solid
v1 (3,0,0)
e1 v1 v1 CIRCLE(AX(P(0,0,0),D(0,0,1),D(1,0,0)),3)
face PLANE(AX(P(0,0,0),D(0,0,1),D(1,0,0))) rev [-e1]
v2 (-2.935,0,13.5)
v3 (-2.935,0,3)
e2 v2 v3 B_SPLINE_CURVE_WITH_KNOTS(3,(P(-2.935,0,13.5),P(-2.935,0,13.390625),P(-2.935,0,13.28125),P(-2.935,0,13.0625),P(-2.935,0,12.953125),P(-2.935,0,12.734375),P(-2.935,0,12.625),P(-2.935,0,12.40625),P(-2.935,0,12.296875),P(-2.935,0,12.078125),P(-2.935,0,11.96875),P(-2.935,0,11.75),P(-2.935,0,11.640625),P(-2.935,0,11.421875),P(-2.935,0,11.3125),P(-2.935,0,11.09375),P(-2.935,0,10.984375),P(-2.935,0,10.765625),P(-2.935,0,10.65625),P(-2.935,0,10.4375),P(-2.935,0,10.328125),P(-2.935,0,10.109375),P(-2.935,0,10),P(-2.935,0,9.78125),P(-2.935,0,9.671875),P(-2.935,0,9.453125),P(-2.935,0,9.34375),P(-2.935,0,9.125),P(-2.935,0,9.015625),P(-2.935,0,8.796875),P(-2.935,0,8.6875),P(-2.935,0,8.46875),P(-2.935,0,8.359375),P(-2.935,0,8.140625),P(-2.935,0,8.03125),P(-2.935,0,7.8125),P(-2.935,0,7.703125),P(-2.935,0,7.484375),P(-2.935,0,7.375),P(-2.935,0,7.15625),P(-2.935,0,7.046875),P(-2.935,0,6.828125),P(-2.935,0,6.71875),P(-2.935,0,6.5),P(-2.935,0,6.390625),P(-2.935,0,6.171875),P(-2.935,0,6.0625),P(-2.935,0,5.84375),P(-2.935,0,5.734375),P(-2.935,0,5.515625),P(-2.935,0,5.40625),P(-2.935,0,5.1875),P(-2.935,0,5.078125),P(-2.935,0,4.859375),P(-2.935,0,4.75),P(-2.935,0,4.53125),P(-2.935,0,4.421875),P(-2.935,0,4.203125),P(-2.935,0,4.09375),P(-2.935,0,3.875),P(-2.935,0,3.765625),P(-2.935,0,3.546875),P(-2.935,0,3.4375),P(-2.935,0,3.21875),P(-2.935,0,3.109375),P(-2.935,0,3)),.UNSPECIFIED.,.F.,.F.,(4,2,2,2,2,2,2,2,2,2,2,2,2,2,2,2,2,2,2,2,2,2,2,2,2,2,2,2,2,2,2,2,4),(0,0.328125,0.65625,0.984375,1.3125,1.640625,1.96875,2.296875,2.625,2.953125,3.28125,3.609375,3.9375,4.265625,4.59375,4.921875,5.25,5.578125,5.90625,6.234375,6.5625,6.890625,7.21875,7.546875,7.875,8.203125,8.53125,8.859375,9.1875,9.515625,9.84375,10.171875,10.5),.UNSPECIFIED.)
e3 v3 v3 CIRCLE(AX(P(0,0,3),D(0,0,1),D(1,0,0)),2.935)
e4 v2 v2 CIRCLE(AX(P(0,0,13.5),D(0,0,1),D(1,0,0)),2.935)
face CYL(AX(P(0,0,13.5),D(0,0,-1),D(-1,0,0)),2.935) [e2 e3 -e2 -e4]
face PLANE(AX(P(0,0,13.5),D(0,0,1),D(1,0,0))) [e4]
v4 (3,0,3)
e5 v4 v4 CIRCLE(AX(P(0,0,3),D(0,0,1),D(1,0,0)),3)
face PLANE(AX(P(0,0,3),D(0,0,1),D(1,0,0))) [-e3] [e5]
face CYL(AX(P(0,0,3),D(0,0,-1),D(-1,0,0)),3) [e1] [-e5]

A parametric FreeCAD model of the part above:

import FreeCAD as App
import Part
import Sketcher

V = App.Vector
Q = App.Units.Quantity

doc = App.newDocument("Part")
body = doc.addObject("PartDesign::Body", "Body")

# Sketch on XY plane
sketch1 = body.newObject("Sketcher::SketchObject", "Sketch")
sketch1.AttachmentSupport = (doc.getObject("XY_Plane"), [""])
sketch1.MapMode = "FlatFace"
sketch1.addGeometry(Part.Circle(V(0, 0, 0), V(0, 0, 1), 3), False)
sketch1.addConstraint(Sketcher.Constraint("Coincident", 0, 3, -1, 1))
sketch1.addConstraint(Sketcher.Constraint("Diameter", 0, Q("6 mm")))
pad1 = body.newObject("PartDesign::Pad", "Pad")
pad1.Profile = sketch1
pad1.Length = 3

# Sketch on XY plane
sketch2 = body.newObject("Sketcher::SketchObject", "Sketch001")
sketch2.AttachmentSupport = (doc.getObject("XY_Plane"), [""])
sketch2.MapMode = "FlatFace"
sketch2.AttachmentOffset = App.Placement(V(0, 0, 3), App.Rotation())
sketch2.addGeometry(Part.Circle(V(0, 0, 0), V(0, 0, 1), 2.9), False)
sketch2.addConstraint(Sketcher.Constraint("Coincident", 0, 3, -1, 1))
sketch2.addConstraint(Sketcher.Constraint("Diameter", 0, Q("5.87 mm")))
pad2 = body.newObject("PartDesign::Pad", "Pad001")
pad2.Profile = sketch2
pad2.Length = 10.5

doc.recompute()
